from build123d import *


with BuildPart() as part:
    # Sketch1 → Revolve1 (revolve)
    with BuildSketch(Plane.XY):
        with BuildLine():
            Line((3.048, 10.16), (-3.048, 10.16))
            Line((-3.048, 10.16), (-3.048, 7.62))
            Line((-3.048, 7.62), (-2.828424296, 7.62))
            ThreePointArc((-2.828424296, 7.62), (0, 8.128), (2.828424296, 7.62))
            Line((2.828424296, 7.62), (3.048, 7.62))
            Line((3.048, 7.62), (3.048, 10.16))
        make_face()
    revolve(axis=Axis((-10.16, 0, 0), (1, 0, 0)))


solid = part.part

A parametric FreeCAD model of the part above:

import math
import FreeCAD as App
import Part
import Sketcher
from FreeCAD import Vector
Q = App.Units.Quantity

doc = App.newDocument("Part")
params = doc.addObject("Spreadsheet::Sheet", "Params")
for row, (alias, value) in enumerate([
    ("sketch1_radius", "0.32 in"),
    ("sketch1_height", "0.1 in"),
    ("sketch1_width", "0.24 in"),
    ("revolution_angle", "360 deg"),
], start=1):
    params.set(f"A{row}", alias)
    params.set(f"B{row}", "=" + value)
    params.setAlias(f"B{row}", alias)

body = doc.addObject("PartDesign::Body", "Body")

# Sketch on XY plane
sketch1 = body.newObject("Sketcher::SketchObject", "Sketch")
sketch1.AttachmentSupport = (doc.getObject("XY_Plane"), [""])
sketch1.MapMode = "FlatFace"
sketch1.addGeometry([
    Part.LineSegment(Vector(3.05, 10.16, 0), Vector(-3.05, 10.16, 0)),  # 0
    Part.LineSegment(Vector(-3.05, 10.16, 0), Vector(-3.05, 7.62, 0)),  # 1
    Part.LineSegment(Vector(-3.05, 7.62, 0), Vector(-2.83, 7.62, 0)),  # 2
    Part.ArcOfCircle(Part.Circle(Vector(0, 0, 0), Vector(0, 0, 1), 8.13), math.radians(70), math.radians(110)),  # 3
    Part.LineSegment(Vector(2.83, 7.62, 0), Vector(3.05, 7.62, 0)),  # 4
    Part.LineSegment(Vector(3.05, 7.62, 0), Vector(3.05, 10.16, 0)),  # 5
], False)
sketch1.addConstraint([
    Sketcher.Constraint("Coincident", 0, 2, 1, 1),
    Sketcher.Constraint("Coincident", 1, 2, 2, 1),
    Sketcher.Constraint("Coincident", 2, 2, 3, 2),
    Sketcher.Constraint("Coincident", 3, 1, 4, 1),
    Sketcher.Constraint("Coincident", 4, 2, 5, 1),
    Sketcher.Constraint("Coincident", 5, 2, 0, 1),
    Sketcher.Constraint("Horizontal", 0),
    Sketcher.Constraint("Vertical", 1),
    Sketcher.Constraint("Horizontal", 2),
    Sketcher.Constraint("Horizontal", 4),
    Sketcher.Constraint("Vertical", 5),
    Sketcher.Constraint("Coincident", 3, 3, -1, 1),
    Sketcher.Constraint("Symmetric", 1, 2, 4, 2, -2),
    Sketcher.Constraint("Radius", 3, Q("0.32 in")),
    Sketcher.Constraint("DistanceY", 1, 2, 1, 1, Q("0.1 in")),
    Sketcher.Constraint("DistanceX", 0, 2, 0, 1, Q("0.24 in")),
    Sketcher.Constraint("DistanceY", -1, 1, 0, 2, Q("0.4 in")),
])
sketch1.setExpression("Constraints[13]", "Params.sketch1_radius")
sketch1.setExpression("Constraints[14]", "Params.sketch1_height")
sketch1.setExpression("Constraints[15]", "Params.sketch1_width")
revolution = body.newObject("PartDesign::Revolution", "Revolution")
revolution.Profile = sketch1
revolution.ReferenceAxis = (sketch1, ["H_Axis"])
revolution.setExpression("Angle", "Params.revolution_angle")

doc.recompute()
